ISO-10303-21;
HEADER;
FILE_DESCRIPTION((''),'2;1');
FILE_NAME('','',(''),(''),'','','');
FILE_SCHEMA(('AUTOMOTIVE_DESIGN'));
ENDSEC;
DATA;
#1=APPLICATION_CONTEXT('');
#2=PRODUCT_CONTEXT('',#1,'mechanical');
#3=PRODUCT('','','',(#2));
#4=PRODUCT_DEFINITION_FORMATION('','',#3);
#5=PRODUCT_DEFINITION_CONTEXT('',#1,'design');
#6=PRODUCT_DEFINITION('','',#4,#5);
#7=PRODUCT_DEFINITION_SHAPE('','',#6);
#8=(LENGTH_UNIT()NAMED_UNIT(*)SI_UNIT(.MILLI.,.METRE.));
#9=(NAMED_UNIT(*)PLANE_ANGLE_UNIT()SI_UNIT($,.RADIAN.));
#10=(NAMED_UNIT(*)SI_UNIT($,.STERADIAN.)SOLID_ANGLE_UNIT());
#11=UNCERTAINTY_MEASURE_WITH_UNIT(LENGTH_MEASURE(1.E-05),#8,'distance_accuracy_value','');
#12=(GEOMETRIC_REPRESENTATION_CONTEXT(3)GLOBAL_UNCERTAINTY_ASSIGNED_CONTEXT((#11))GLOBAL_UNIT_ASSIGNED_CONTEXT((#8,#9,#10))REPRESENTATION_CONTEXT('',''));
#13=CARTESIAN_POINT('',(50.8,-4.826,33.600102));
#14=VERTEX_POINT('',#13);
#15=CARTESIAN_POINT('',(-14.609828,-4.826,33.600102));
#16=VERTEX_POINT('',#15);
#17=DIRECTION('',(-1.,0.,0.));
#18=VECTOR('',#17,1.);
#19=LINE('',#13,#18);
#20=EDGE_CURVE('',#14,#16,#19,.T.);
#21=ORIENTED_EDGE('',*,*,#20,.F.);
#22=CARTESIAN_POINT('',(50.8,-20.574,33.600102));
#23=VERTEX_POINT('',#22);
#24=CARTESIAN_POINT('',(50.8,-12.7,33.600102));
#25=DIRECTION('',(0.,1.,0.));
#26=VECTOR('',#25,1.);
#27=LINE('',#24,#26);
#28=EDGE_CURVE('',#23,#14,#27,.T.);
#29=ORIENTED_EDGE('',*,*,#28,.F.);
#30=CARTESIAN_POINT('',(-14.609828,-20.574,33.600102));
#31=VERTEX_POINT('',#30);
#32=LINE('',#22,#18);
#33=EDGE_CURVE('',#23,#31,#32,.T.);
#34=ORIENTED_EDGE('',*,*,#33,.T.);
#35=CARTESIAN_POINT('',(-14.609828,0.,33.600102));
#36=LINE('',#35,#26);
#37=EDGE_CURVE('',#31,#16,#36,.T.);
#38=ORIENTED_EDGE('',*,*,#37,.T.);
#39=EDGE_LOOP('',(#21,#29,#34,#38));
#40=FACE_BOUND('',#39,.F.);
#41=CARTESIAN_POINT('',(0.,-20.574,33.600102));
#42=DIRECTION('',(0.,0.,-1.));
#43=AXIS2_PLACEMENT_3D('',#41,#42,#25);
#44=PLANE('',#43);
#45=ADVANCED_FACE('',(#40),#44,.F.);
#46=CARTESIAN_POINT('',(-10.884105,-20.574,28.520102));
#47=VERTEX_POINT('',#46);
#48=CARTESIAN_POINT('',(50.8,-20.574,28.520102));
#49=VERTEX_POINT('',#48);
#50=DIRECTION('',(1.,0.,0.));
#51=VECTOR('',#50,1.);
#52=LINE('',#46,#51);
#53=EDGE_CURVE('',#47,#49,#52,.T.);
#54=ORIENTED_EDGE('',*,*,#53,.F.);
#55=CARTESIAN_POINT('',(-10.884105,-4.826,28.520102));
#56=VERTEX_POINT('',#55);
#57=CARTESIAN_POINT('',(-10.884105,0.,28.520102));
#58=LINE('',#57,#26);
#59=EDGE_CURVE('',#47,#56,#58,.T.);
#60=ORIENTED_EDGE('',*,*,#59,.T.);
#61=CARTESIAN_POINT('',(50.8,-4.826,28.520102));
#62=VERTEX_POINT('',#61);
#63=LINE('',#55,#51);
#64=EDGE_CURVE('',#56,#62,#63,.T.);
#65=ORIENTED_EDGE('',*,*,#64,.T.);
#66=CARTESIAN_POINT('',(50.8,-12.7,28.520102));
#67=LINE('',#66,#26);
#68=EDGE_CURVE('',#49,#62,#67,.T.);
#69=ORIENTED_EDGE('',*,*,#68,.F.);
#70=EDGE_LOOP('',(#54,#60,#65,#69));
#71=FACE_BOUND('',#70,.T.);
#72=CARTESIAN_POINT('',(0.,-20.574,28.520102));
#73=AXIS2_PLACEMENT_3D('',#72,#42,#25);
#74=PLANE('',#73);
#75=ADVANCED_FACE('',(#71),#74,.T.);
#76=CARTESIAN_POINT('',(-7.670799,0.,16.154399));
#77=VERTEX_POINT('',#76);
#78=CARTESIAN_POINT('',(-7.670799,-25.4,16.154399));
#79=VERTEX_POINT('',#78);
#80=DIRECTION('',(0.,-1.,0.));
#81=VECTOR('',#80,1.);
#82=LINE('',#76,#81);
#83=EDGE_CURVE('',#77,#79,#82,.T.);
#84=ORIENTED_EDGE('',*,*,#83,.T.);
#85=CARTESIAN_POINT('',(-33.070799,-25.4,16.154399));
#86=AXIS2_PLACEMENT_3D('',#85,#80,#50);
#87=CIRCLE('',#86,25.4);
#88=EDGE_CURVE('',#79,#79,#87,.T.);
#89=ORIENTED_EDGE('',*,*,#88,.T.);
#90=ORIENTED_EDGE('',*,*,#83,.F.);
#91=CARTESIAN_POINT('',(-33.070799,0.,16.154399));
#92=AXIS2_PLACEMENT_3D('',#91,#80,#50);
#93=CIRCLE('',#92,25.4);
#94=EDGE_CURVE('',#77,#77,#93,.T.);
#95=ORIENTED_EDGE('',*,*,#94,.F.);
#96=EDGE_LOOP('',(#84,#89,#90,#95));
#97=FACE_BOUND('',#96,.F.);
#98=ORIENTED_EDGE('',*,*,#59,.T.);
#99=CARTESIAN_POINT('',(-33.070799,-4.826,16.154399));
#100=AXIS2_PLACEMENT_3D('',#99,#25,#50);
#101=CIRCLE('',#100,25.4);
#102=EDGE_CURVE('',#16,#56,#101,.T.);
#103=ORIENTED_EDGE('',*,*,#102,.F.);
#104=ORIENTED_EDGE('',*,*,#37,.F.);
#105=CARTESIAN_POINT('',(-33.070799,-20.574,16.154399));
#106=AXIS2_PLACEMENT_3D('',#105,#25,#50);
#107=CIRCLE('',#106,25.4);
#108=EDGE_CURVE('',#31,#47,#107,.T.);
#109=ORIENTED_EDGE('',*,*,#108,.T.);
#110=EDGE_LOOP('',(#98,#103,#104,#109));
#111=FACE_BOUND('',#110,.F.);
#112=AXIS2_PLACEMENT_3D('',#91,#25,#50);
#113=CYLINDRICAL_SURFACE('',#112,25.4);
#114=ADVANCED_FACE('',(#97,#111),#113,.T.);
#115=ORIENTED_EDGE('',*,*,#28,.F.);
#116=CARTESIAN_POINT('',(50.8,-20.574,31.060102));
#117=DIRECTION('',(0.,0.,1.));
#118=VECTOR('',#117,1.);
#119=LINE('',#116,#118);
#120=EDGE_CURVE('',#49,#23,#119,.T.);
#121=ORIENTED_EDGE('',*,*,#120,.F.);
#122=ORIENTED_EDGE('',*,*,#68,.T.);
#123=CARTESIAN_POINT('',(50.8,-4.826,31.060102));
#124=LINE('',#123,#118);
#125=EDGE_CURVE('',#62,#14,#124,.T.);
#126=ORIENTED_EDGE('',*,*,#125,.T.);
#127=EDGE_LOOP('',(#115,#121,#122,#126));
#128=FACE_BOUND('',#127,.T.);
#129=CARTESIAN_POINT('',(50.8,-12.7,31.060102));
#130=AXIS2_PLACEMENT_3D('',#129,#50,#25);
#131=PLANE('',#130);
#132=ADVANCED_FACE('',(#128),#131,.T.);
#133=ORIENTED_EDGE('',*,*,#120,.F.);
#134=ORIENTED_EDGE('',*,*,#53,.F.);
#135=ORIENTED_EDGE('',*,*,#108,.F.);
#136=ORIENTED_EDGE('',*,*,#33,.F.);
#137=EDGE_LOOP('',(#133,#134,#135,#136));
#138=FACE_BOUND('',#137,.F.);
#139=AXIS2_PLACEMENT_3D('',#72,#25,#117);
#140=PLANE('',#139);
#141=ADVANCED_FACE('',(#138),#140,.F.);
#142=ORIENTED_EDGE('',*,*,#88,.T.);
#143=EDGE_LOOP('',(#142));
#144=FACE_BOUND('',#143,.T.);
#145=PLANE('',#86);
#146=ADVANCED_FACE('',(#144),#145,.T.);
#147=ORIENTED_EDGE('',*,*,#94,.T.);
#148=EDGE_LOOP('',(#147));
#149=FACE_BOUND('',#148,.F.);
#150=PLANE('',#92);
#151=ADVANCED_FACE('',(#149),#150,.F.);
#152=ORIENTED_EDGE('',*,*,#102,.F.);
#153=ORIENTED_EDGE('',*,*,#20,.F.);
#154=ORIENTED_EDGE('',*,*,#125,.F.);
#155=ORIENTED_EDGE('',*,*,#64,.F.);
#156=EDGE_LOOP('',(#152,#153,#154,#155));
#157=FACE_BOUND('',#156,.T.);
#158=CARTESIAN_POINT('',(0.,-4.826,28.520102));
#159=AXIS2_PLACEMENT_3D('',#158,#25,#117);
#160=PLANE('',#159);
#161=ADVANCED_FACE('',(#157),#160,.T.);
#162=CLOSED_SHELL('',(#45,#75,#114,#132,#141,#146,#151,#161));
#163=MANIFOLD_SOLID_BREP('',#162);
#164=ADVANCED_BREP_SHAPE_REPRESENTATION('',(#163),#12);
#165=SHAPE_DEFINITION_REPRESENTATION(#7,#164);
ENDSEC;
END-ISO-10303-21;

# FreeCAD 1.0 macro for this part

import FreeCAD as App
import Part
import Sketcher

V = App.Vector
Q = App.Units.Quantity


def add_polygon(sketch, points):
    """Adds a closed chain of lines whose ends are joined by coincident constraints."""
    first, n = sketch.GeometryCount, len(points)
    for a, b in zip(points, points[1:] + points[:1]):
        sketch.addGeometry(Part.LineSegment(App.Vector(*a, 0), App.Vector(*b, 0)), False)
    for i in range(n):
        sketch.addConstraint(Sketcher.Constraint("Coincident", first + i, 2, first + (i + 1) % n, 1))

doc = App.newDocument("Part")
params = doc.addObject("Spreadsheet::Sheet", "Params")
for row, (alias, value) in enumerate([
    ("sketch1_diameter", "2 in"),
    ("pad1_length", "1 in"),
    ("sketch2_height", "0.2 in"),
    ("sketch2_width", "0.62 in"),
    ("pad2_length", "2 in"),
    ("pad2_length2", "1 in"),
], start=1):
    params.set(f"A{row}", alias)
    params.set(f"B{row}", "=" + value)
    params.setAlias(f"B{row}", alias)

body = doc.addObject("PartDesign::Body", "Body")

sketch1 = body.newObject("Sketcher::SketchObject", "Sketch")
sketch1.AttachmentSupport = (doc.getObject("XZ_Plane"), [""])
sketch1.MapMode = "FlatFace"
sketch1.addGeometry(Part.Circle(V(-33, 16, 0), V(0, 0, 1), 25), False)
sketch1.addConstraint(Sketcher.Constraint("Diameter", 0, Q("2 in")))
sketch1.addConstraint(Sketcher.Constraint("DistanceX", 0, 3, -1, 1, Q("1.302 in")))
sketch1.addConstraint(Sketcher.Constraint("DistanceY", -1, 1, 0, 3, Q("0.636 in")))
sketch1.setExpression("Constraints[0]", "Params.sketch1_diameter")
pad1 = body.newObject("PartDesign::Pad", "Pad")
pad1.Profile = sketch1
pad1.setExpression("Length", "Params.pad1_length")

sketch2 = body.newObject("Sketcher::SketchObject", "Sketch001")
sketch2.AttachmentSupport = (doc.getObject("YZ_Plane"), [""])
sketch2.MapMode = "FlatFace"
add_polygon(sketch2, [(-21, 34), (-21, 29), (-5, 29), (-5, 34)])
sketch2.addConstraint(Sketcher.Constraint("Vertical", 0))
sketch2.addConstraint(Sketcher.Constraint("Horizontal", 1))
sketch2.addConstraint(Sketcher.Constraint("Vertical", 2))
sketch2.addConstraint(Sketcher.Constraint("Horizontal", 3))
sketch2.addConstraint(Sketcher.Constraint("DistanceY", 0, 2, 0, 1, Q("0.2 in")))
sketch2.addConstraint(Sketcher.Constraint("DistanceX", 1, 1, 1, 2, Q("0.62 in")))
sketch2.addConstraint(Sketcher.Constraint("DistanceX", 0, 2, -1, 1, Q("0.81 in")))
sketch2.addConstraint(Sketcher.Constraint("DistanceY", -1, 1, 0, 2, 28.520102))
sketch2.setExpression("Constraints[8]", "Params.sketch2_height")
sketch2.setExpression("Constraints[9]", "Params.sketch2_width")
pad2 = body.newObject("PartDesign::Pad", "Pad001")
pad2.Profile = sketch2
pad2.Type = "TwoLengths"
pad2.setExpression("Length", "Params.pad2_length")
pad2.setExpression("Length2", "Params.pad2_length2")

doc.recompute()
